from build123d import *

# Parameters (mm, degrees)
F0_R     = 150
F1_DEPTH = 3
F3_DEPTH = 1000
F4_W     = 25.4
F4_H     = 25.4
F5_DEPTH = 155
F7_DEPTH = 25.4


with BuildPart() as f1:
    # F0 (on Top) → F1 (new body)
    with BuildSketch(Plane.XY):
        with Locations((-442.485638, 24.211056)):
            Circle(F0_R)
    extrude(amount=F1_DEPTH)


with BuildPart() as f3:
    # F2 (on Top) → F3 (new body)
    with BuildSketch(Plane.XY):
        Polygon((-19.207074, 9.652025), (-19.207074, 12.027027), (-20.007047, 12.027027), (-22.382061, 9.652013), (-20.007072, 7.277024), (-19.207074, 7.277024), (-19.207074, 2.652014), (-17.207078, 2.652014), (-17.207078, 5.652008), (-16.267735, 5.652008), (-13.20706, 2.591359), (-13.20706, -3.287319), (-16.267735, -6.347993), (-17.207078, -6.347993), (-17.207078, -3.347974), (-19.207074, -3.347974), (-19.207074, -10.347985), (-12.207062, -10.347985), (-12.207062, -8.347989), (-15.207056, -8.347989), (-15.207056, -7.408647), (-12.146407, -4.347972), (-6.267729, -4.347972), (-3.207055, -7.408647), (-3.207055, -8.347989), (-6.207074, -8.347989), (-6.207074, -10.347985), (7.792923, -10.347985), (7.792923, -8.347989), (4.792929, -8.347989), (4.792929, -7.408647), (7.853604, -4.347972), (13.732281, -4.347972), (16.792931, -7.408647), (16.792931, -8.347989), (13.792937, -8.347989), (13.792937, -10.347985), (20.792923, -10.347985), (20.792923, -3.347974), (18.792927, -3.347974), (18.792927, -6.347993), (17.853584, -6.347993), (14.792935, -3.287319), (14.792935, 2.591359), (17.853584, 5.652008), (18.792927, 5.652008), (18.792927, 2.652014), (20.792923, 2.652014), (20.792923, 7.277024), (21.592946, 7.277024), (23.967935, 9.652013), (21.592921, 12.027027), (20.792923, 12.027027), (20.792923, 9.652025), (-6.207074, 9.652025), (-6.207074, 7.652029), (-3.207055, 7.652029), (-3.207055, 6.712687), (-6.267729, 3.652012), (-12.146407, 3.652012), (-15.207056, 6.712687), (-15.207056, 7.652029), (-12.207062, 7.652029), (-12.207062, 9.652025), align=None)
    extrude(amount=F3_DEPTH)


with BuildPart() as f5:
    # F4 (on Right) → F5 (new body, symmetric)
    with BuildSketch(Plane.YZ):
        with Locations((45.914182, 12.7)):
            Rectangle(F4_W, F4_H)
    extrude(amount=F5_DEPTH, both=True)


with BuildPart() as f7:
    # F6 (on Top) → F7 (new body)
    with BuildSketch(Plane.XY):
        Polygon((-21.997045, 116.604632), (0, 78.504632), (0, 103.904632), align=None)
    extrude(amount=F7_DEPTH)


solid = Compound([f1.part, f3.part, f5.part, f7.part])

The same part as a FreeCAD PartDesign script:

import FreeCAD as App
import Part
import Sketcher
Q = App.Units.Quantity

doc = App.newDocument("Part")
body = doc.addObject("PartDesign::Body", "Body")

sketch1 = doc.addObject("Sketcher::SketchObject", "Sketch")
body.addObject(sketch1)
sketch1.AttachmentSupport = (doc.XY_Plane, [""])
sketch1.MapMode = "FlatFace"
sketch1.addGeometry(Part.Circle(App.Vector(-442.485638, 24.211056, 0), App.Vector(0, 0, 1), 150), False)
sketch1.addConstraint([
    Sketcher.Constraint("Diameter", 0, 300.0),
    Sketcher.Constraint("DistanceX", 0, 3, -1, 1, 442.485638),
    Sketcher.Constraint("DistanceY", -1, 1, 0, 3, 24.211056),
])
pad1 = doc.addObject("PartDesign::Pad", "Pad")
body.addObject(pad1)
pad1.Profile = sketch1
pad1.Length = 3
body2 = doc.addObject("PartDesign::Body", "Body001")

sketch2 = doc.addObject("Sketcher::SketchObject", "Sketch001")
body2.addObject(sketch2)
sketch2.AttachmentSupport = (doc.getObject("XY_Plane001"), [""])
sketch2.MapMode = "FlatFace"
sketch2.addGeometry([
    Part.LineSegment(App.Vector(-19.207074, 9.652025, 0), App.Vector(-19.207074, 12.027027, 0)),
    Part.LineSegment(App.Vector(-19.207074, 12.027027, 0), App.Vector(-20.007047, 12.027027, 0)),
    Part.LineSegment(App.Vector(-20.007047, 12.027027, 0), App.Vector(-22.382061, 9.652013, 0)),
    Part.LineSegment(App.Vector(-22.382061, 9.652013, 0), App.Vector(-20.007072, 7.277024, 0)),
    Part.LineSegment(App.Vector(-20.007072, 7.277024, 0), App.Vector(-19.207074, 7.277024, 0)),
    Part.LineSegment(App.Vector(-19.207074, 7.277024, 0), App.Vector(-19.207074, 2.652014, 0)),
    Part.LineSegment(App.Vector(-19.207074, 2.652014, 0), App.Vector(-17.207078, 2.652014, 0)),
    Part.LineSegment(App.Vector(-17.207078, 2.652014, 0), App.Vector(-17.207078, 5.652008, 0)),
    Part.LineSegment(App.Vector(-17.207078, 5.652008, 0), App.Vector(-16.267735, 5.652008, 0)),
    Part.LineSegment(App.Vector(-16.267735, 5.652008, 0), App.Vector(-13.20706, 2.591359, 0)),
    Part.LineSegment(App.Vector(-13.20706, 2.591359, 0), App.Vector(-13.20706, -3.287319, 0)),
    Part.LineSegment(App.Vector(-13.20706, -3.287319, 0), App.Vector(-16.267735, -6.347993, 0)),
    Part.LineSegment(App.Vector(-16.267735, -6.347993, 0), App.Vector(-17.207078, -6.347993, 0)),
    Part.LineSegment(App.Vector(-17.207078, -6.347993, 0), App.Vector(-17.207078, -3.347974, 0)),
    Part.LineSegment(App.Vector(-17.207078, -3.347974, 0), App.Vector(-19.207074, -3.347974, 0)),
    Part.LineSegment(App.Vector(-19.207074, -3.347974, 0), App.Vector(-19.207074, -10.347985, 0)),
    Part.LineSegment(App.Vector(-19.207074, -10.347985, 0), App.Vector(-12.207062, -10.347985, 0)),
    Part.LineSegment(App.Vector(-12.207062, -10.347985, 0), App.Vector(-12.207062, -8.347989, 0)),
    Part.LineSegment(App.Vector(-12.207062, -8.347989, 0), App.Vector(-15.207056, -8.347989, 0)),
    Part.LineSegment(App.Vector(-15.207056, -8.347989, 0), App.Vector(-15.207056, -7.408647, 0)),
    Part.LineSegment(App.Vector(-15.207056, -7.408647, 0), App.Vector(-12.146407, -4.347972, 0)),
    Part.LineSegment(App.Vector(-12.146407, -4.347972, 0), App.Vector(-6.267729, -4.347972, 0)),
    Part.LineSegment(App.Vector(-6.267729, -4.347972, 0), App.Vector(-3.207055, -7.408647, 0)),
    Part.LineSegment(App.Vector(-3.207055, -7.408647, 0), App.Vector(-3.207055, -8.347989, 0)),
    Part.LineSegment(App.Vector(-3.207055, -8.347989, 0), App.Vector(-6.207074, -8.347989, 0)),
    Part.LineSegment(App.Vector(-6.207074, -8.347989, 0), App.Vector(-6.207074, -10.347985, 0)),
    Part.LineSegment(App.Vector(-6.207074, -10.347985, 0), App.Vector(7.792923, -10.347985, 0)),
    Part.LineSegment(App.Vector(7.792923, -10.347985, 0), App.Vector(7.792923, -8.347989, 0)),
    Part.LineSegment(App.Vector(7.792923, -8.347989, 0), App.Vector(4.792929, -8.347989, 0)),
    Part.LineSegment(App.Vector(4.792929, -8.347989, 0), App.Vector(4.792929, -7.408647, 0)),
    Part.LineSegment(App.Vector(4.792929, -7.408647, 0), App.Vector(7.853604, -4.347972, 0)),
    Part.LineSegment(App.Vector(7.853604, -4.347972, 0), App.Vector(13.732281, -4.347972, 0)),
    Part.LineSegment(App.Vector(13.732281, -4.347972, 0), App.Vector(16.792931, -7.408647, 0)),
    Part.LineSegment(App.Vector(16.792931, -7.408647, 0), App.Vector(16.792931, -8.347989, 0)),
    Part.LineSegment(App.Vector(16.792931, -8.347989, 0), App.Vector(13.792937, -8.347989, 0)),
    Part.LineSegment(App.Vector(13.792937, -8.347989, 0), App.Vector(13.792937, -10.347985, 0)),
    Part.LineSegment(App.Vector(13.792937, -10.347985, 0), App.Vector(20.792923, -10.347985, 0)),
    Part.LineSegment(App.Vector(20.792923, -10.347985, 0), App.Vector(20.792923, -3.347974, 0)),
    Part.LineSegment(App.Vector(20.792923, -3.347974, 0), App.Vector(18.792927, -3.347974, 0)),
    Part.LineSegment(App.Vector(18.792927, -3.347974, 0), App.Vector(18.792927, -6.347993, 0)),
    Part.LineSegment(App.Vector(18.792927, -6.347993, 0), App.Vector(17.853584, -6.347993, 0)),
    Part.LineSegment(App.Vector(17.853584, -6.347993, 0), App.Vector(14.792935, -3.287319, 0)),
    Part.LineSegment(App.Vector(14.792935, -3.287319, 0), App.Vector(14.792935, 2.591359, 0)),
    Part.LineSegment(App.Vector(14.792935, 2.591359, 0), App.Vector(17.853584, 5.652008, 0)),
    Part.LineSegment(App.Vector(17.853584, 5.652008, 0), App.Vector(18.792927, 5.652008, 0)),
    Part.LineSegment(App.Vector(18.792927, 5.652008, 0), App.Vector(18.792927, 2.652014, 0)),
    Part.LineSegment(App.Vector(18.792927, 2.652014, 0), App.Vector(20.792923, 2.652014, 0)),
    Part.LineSegment(App.Vector(20.792923, 2.652014, 0), App.Vector(20.792923, 7.277024, 0)),
    Part.LineSegment(App.Vector(20.792923, 7.277024, 0), App.Vector(21.592946, 7.277024, 0)),
    Part.LineSegment(App.Vector(21.592946, 7.277024, 0), App.Vector(23.967935, 9.652013, 0)),
    Part.LineSegment(App.Vector(23.967935, 9.652013, 0), App.Vector(21.592921, 12.027027, 0)),
    Part.LineSegment(App.Vector(21.592921, 12.027027, 0), App.Vector(20.792923, 12.027027, 0)),
    Part.LineSegment(App.Vector(20.792923, 12.027027, 0), App.Vector(20.792923, 9.652025, 0)),
    Part.LineSegment(App.Vector(20.792923, 9.652025, 0), App.Vector(-6.207074, 9.652025, 0)),
    Part.LineSegment(App.Vector(-6.207074, 9.652025, 0), App.Vector(-6.207074, 7.652029, 0)),
    Part.LineSegment(App.Vector(-6.207074, 7.652029, 0), App.Vector(-3.207055, 7.652029, 0)),
    Part.LineSegment(App.Vector(-3.207055, 7.652029, 0), App.Vector(-3.207055, 6.712687, 0)),
    Part.LineSegment(App.Vector(-3.207055, 6.712687, 0), App.Vector(-6.267729, 3.652012, 0)),
    Part.LineSegment(App.Vector(-6.267729, 3.652012, 0), App.Vector(-12.146407, 3.652012, 0)),
    Part.LineSegment(App.Vector(-12.146407, 3.652012, 0), App.Vector(-15.207056, 6.712687, 0)),
    Part.LineSegment(App.Vector(-15.207056, 6.712687, 0), App.Vector(-15.207056, 7.652029, 0)),
    Part.LineSegment(App.Vector(-15.207056, 7.652029, 0), App.Vector(-12.207062, 7.652029, 0)),
    Part.LineSegment(App.Vector(-12.207062, 7.652029, 0), App.Vector(-12.207062, 9.652025, 0)),
    Part.LineSegment(App.Vector(-12.207062, 9.652025, 0), App.Vector(-19.207074, 9.652025, 0)),
], False)
sketch2.addConstraint([
    Sketcher.Constraint("Coincident", 0, 2, 1, 1),
    Sketcher.Constraint("Coincident", 1, 2, 2, 1),
    Sketcher.Constraint("Coincident", 2, 2, 3, 1),
    Sketcher.Constraint("Coincident", 3, 2, 4, 1),
    Sketcher.Constraint("Coincident", 4, 2, 5, 1),
    Sketcher.Constraint("Coincident", 5, 2, 6, 1),
    Sketcher.Constraint("Coincident", 6, 2, 7, 1),
    Sketcher.Constraint("Coincident", 7, 2, 8, 1),
    Sketcher.Constraint("Coincident", 8, 2, 9, 1),
    Sketcher.Constraint("Coincident", 9, 2, 10, 1),
    Sketcher.Constraint("Coincident", 10, 2, 11, 1),
    Sketcher.Constraint("Coincident", 11, 2, 12, 1),
    Sketcher.Constraint("Coincident", 12, 2, 13, 1),
    Sketcher.Constraint("Coincident", 13, 2, 14, 1),
    Sketcher.Constraint("Coincident", 14, 2, 15, 1),
    Sketcher.Constraint("Coincident", 15, 2, 16, 1),
    Sketcher.Constraint("Coincident", 16, 2, 17, 1),
    Sketcher.Constraint("Coincident", 17, 2, 18, 1),
    Sketcher.Constraint("Coincident", 18, 2, 19, 1),
    Sketcher.Constraint("Coincident", 19, 2, 20, 1),
    Sketcher.Constraint("Coincident", 20, 2, 21, 1),
    Sketcher.Constraint("Coincident", 21, 2, 22, 1),
    Sketcher.Constraint("Coincident", 22, 2, 23, 1),
    Sketcher.Constraint("Coincident", 23, 2, 24, 1),
    Sketcher.Constraint("Coincident", 24, 2, 25, 1),
    Sketcher.Constraint("Coincident", 25, 2, 26, 1),
    Sketcher.Constraint("Coincident", 26, 2, 27, 1),
    Sketcher.Constraint("Coincident", 27, 2, 28, 1),
    Sketcher.Constraint("Coincident", 28, 2, 29, 1),
    Sketcher.Constraint("Coincident", 29, 2, 30, 1),
    Sketcher.Constraint("Coincident", 30, 2, 31, 1),
    Sketcher.Constraint("Coincident", 31, 2, 32, 1),
    Sketcher.Constraint("Coincident", 32, 2, 33, 1),
    Sketcher.Constraint("Coincident", 33, 2, 34, 1),
    Sketcher.Constraint("Coincident", 34, 2, 35, 1),
    Sketcher.Constraint("Coincident", 35, 2, 36, 1),
    Sketcher.Constraint("Coincident", 36, 2, 37, 1),
    Sketcher.Constraint("Coincident", 37, 2, 38, 1),
    Sketcher.Constraint("Coincident", 38, 2, 39, 1),
    Sketcher.Constraint("Coincident", 39, 2, 40, 1),
    Sketcher.Constraint("Coincident", 40, 2, 41, 1),
    Sketcher.Constraint("Coincident", 41, 2, 42, 1),
    Sketcher.Constraint("Coincident", 42, 2, 43, 1),
    Sketcher.Constraint("Coincident", 43, 2, 44, 1),
    Sketcher.Constraint("Coincident", 44, 2, 45, 1),
    Sketcher.Constraint("Coincident", 45, 2, 46, 1),
    Sketcher.Constraint("Coincident", 46, 2, 47, 1),
    Sketcher.Constraint("Coincident", 47, 2, 48, 1),
    Sketcher.Constraint("Coincident", 48, 2, 49, 1),
    Sketcher.Constraint("Coincident", 49, 2, 50, 1),
    Sketcher.Constraint("Coincident", 50, 2, 51, 1),
    Sketcher.Constraint("Coincident", 51, 2, 52, 1),
    Sketcher.Constraint("Coincident", 52, 2, 53, 1),
    Sketcher.Constraint("Coincident", 53, 2, 54, 1),
    Sketcher.Constraint("Coincident", 54, 2, 55, 1),
    Sketcher.Constraint("Coincident", 55, 2, 56, 1),
    Sketcher.Constraint("Coincident", 56, 2, 57, 1),
    Sketcher.Constraint("Coincident", 57, 2, 58, 1),
    Sketcher.Constraint("Coincident", 58, 2, 59, 1),
    Sketcher.Constraint("Coincident", 59, 2, 60, 1),
    Sketcher.Constraint("Coincident", 60, 2, 61, 1),
    Sketcher.Constraint("Coincident", 61, 2, 62, 1),
    Sketcher.Constraint("Coincident", 62, 2, 63, 1),
    Sketcher.Constraint("Coincident", 63, 2, 0, 1),
    Sketcher.Constraint("Vertical", 0),
    Sketcher.Constraint("Horizontal", 1),
    Sketcher.Constraint("Horizontal", 4),
    Sketcher.Constraint("Vertical", 5),
    Sketcher.Constraint("Horizontal", 6),
    Sketcher.Constraint("Vertical", 7),
    Sketcher.Constraint("Horizontal", 8),
    Sketcher.Constraint("Vertical", 10),
    Sketcher.Constraint("Horizontal", 12),
    Sketcher.Constraint("Vertical", 13),
    Sketcher.Constraint("Horizontal", 14),
    Sketcher.Constraint("Vertical", 15),
    Sketcher.Constraint("Horizontal", 16),
    Sketcher.Constraint("Vertical", 17),
    Sketcher.Constraint("Horizontal", 18),
    Sketcher.Constraint("Vertical", 19),
    Sketcher.Constraint("Horizontal", 21),
    Sketcher.Constraint("Vertical", 23),
    Sketcher.Constraint("Horizontal", 24),
    Sketcher.Constraint("Vertical", 25),
    Sketcher.Constraint("Horizontal", 26),
    Sketcher.Constraint("Vertical", 27),
    Sketcher.Constraint("Horizontal", 28),
    Sketcher.Constraint("Vertical", 29),
    Sketcher.Constraint("Horizontal", 31),
    Sketcher.Constraint("Vertical", 33),
    Sketcher.Constraint("Horizontal", 34),
    Sketcher.Constraint("Vertical", 35),
    Sketcher.Constraint("Horizontal", 36),
    Sketcher.Constraint("Vertical", 37),
    Sketcher.Constraint("Horizontal", 38),
    Sketcher.Constraint("Vertical", 39),
    Sketcher.Constraint("Horizontal", 40),
    Sketcher.Constraint("Vertical", 42),
    Sketcher.Constraint("Horizontal", 44),
    Sketcher.Constraint("Vertical", 45),
    Sketcher.Constraint("Horizontal", 46),
    Sketcher.Constraint("Vertical", 47),
    Sketcher.Constraint("Horizontal", 48),
    Sketcher.Constraint("Horizontal", 51),
    Sketcher.Constraint("Vertical", 52),
    Sketcher.Constraint("Horizontal", 53),
    Sketcher.Constraint("Vertical", 54),
    Sketcher.Constraint("Horizontal", 55),
    Sketcher.Constraint("Vertical", 56),
    Sketcher.Constraint("Horizontal", 58),
    Sketcher.Constraint("Vertical", 60),
    Sketcher.Constraint("Horizontal", 61),
    Sketcher.Constraint("Vertical", 62),
    Sketcher.Constraint("Horizontal", 63),
    Sketcher.Constraint("Perpendicular", 2, 3),
    Sketcher.Constraint("Perpendicular", 3, 11),
    Sketcher.Constraint("Perpendicular", 9, 20),
    Sketcher.Constraint("Perpendicular", 11, 22),
    Sketcher.Constraint("Perpendicular", 22, 30),
    Sketcher.Constraint("Parallel", 32, 41),
    Sketcher.Constraint("Parallel", 30, 43),
    Sketcher.Constraint("Parallel", 43, 49),
    Sketcher.Constraint("Perpendicular", 49, 50),
    Sketcher.Constraint("Perpendicular", 50, 57),
    Sketcher.Constraint("Parallel", 41, 59),
    Sketcher.Constraint("Horizontal", 19, 2, 22, 2),
    Sketcher.Constraint("Horizontal", 18, 2, 23, 2),
    Sketcher.Constraint("Horizontal", 16, 2, 25, 2),
    Sketcher.Constraint("Horizontal", 24, 2, 27, 2),
    Sketcher.Constraint("Horizontal", 22, 2, 29, 2),
    Sketcher.Constraint("Horizontal", 21, 2, 30, 2),
    Sketcher.Constraint("Horizontal", 29, 2, 32, 2),
    Sketcher.Constraint("Horizontal", 28, 2, 33, 2),
    Sketcher.Constraint("Horizontal", 26, 2, 35, 2),
    Sketcher.Constraint("Horizontal", 14, 2, 37, 2),
    Sketcher.Constraint("Horizontal", 12, 2, 39, 2),
    Sketcher.Constraint("Horizontal", 10, 2, 41, 2),
    Sketcher.Constraint("Horizontal", 9, 2, 42, 2),
    Sketcher.Constraint("Horizontal", 8, 2, 43, 2),
    Sketcher.Constraint("Horizontal", 6, 2, 45, 2),
    Sketcher.Constraint("Horizontal", 4, 2, 47, 2),
    Sketcher.Constraint("Horizontal", 2, 2, 49, 2),
    Sketcher.Constraint("Horizontal", 1, 2, 50, 2),
    Sketcher.Constraint("Horizontal", 56, 2, 59, 2),
    Sketcher.Constraint("Horizontal", 55, 2, 60, 2),
    Sketcher.Constraint("Horizontal", 53, 2, 62, 2),
    Sketcher.Constraint("Vertical", 0, 2, 4, 2),
    Sketcher.Constraint("Vertical", 8, 2, 11, 2),
    Sketcher.Constraint("Vertical", 7, 2, 12, 2),
    Sketcher.Constraint("Vertical", 5, 2, 14, 2),
    Sketcher.Constraint("Vertical", 40, 2, 43, 2),
    Sketcher.Constraint("Vertical", 39, 2, 44, 2),
    Sketcher.Constraint("Vertical", 37, 2, 46, 2),
    Sketcher.Constraint("Vertical", 47, 2, 51, 2),
    Sketcher.Constraint("Vertical", 25, 2, 53, 2),
    Sketcher.Constraint("Vertical", 23, 2, 55, 2),
    Sketcher.Constraint("Vertical", 21, 2, 57, 2),
    Sketcher.Constraint("Vertical", 20, 2, 58, 2),
    Sketcher.Constraint("Vertical", 17, 2, 61, 2),
    Sketcher.Constraint("Equal", 18, 28),
    Sketcher.Constraint("Equal", 21, 31),
    Sketcher.Constraint("Equal", 28, 34),
    Sketcher.Constraint("Equal", 14, 38),
    Sketcher.Constraint("Equal", 12, 40),
    Sketcher.Constraint("Equal", 4, 51),
    Sketcher.Constraint("Equal", 61, 7),
    Sketcher.Constraint("Equal", 58, 10),
    Sketcher.Constraint("Equal", 55, 13),
    Sketcher.Constraint("Equal", 63, 15),
    Sketcher.Constraint("Equal", 46, 17),
    Sketcher.Constraint("Equal", 44, 19),
    Sketcher.Constraint("Equal", 35, 54),
    Sketcher.Constraint("Equal", 33, 56),
    Sketcher.Constraint("Equal", 9, 20),
    Sketcher.Constraint("Equal", 22, 30),
    Sketcher.Constraint("DistanceX", 4, 1, 4, 2, 0.799998),
    Sketcher.Constraint("DistanceX", 16, 1, 16, 2, 7.000012),
    Sketcher.Constraint("DistanceX", 24, 2, 24, 1, 3.000019),
    Sketcher.Constraint("DistanceY", 5, 2, 5, 1, 4.62501),
    Sketcher.Constraint("DistanceY", 10, 2, 10, 1, 5.878678),
    Sketcher.Constraint("DistanceY", 19, 1, 19, 2, 0.939342),
    Sketcher.Constraint("Distance", 3, 3.358742),
    Sketcher.Constraint("Distance", 9, 4.32843),
    Sketcher.Constraint("Distance", 30, 4.328448),
    Sketcher.Constraint("DistanceX", 1, 2, 1, 1, 0.799973),
    Sketcher.Constraint("DistanceX", 6, 1, 6, 2, 1.999996),
    Sketcher.Constraint("DistanceX", 18, 2, 18, 1, 2.999994),
    Sketcher.Constraint("DistanceX", 26, 1, 26, 2, 13.999997),
    Sketcher.Constraint("DistanceX", 36, 1, 36, 2, 6.999986),
    Sketcher.Constraint("DistanceY", 0, 1, 0, 2, 2.375002),
    Sketcher.Constraint("DistanceX", 2, 2, -1, 1, 22.382061),
    Sketcher.Constraint("DistanceY", -1, 1, 7, 2, 5.652008),
])
pad2 = doc.addObject("PartDesign::Pad", "Pad001")
body2.addObject(pad2)
pad2.Profile = sketch2
pad2.Length = 1000
body3 = doc.addObject("PartDesign::Body", "Body002")

sketch3 = doc.addObject("Sketcher::SketchObject", "Sketch002")
body3.addObject(sketch3)
sketch3.AttachmentSupport = (doc.getObject("YZ_Plane002"), [""])
sketch3.MapMode = "FlatFace"
sketch3.addGeometry([
    Part.LineSegment(App.Vector(33.214182, 25.4, 0), App.Vector(33.214182, 0, 0)),
    Part.LineSegment(App.Vector(33.214182, 0, 0), App.Vector(58.614182, 0, 0)),
    Part.LineSegment(App.Vector(58.614182, 0, 0), App.Vector(58.614182, 25.4, 0)),
    Part.LineSegment(App.Vector(58.614182, 25.4, 0), App.Vector(33.214182, 25.4, 0)),
], False)
sketch3.addConstraint([
    Sketcher.Constraint("Coincident", 0, 2, 1, 1),
    Sketcher.Constraint("Coincident", 1, 2, 2, 1),
    Sketcher.Constraint("Coincident", 2, 2, 3, 1),
    Sketcher.Constraint("Coincident", 3, 2, 0, 1),
    Sketcher.Constraint("Vertical", 0),
    Sketcher.Constraint("Horizontal", 1),
    Sketcher.Constraint("Vertical", 2),
    Sketcher.Constraint("Horizontal", 3),
    Sketcher.Constraint("PointOnObject", 0, 2, -1),
    Sketcher.Constraint("Equal", 3, 0),
    Sketcher.Constraint("DistanceX", 1, 1, 1, 2, 25.4),
    Sketcher.Constraint("DistanceX", -1, 1, 0, 2, 33.214182),
])
pad3 = doc.addObject("PartDesign::Pad", "Pad002")
body3.addObject(pad3)
pad3.Profile = sketch3
pad3.Length = 310
pad3.Midplane = True
body4 = doc.addObject("PartDesign::Body", "Body003")

sketch4 = doc.addObject("Sketcher::SketchObject", "Sketch003")
body4.addObject(sketch4)
sketch4.AttachmentSupport = (doc.getObject("XY_Plane003"), [""])
sketch4.MapMode = "FlatFace"
sketch4.addGeometry([
    Part.LineSegment(App.Vector(-21.997045, 116.604632, 0), App.Vector(0, 78.504632, 0)),
    Part.LineSegment(App.Vector(0, 78.504632, 0), App.Vector(0, 103.904632, 0)),
    Part.LineSegment(App.Vector(0, 103.904632, 0), App.Vector(-21.997045, 116.604632, 0)),
], False)
sketch4.addConstraint([
    Sketcher.Constraint("Coincident", 0, 2, 1, 1),
    Sketcher.Constraint("Coincident", 1, 2, 2, 1),
    Sketcher.Constraint("Coincident", 2, 2, 0, 1),
    Sketcher.Constraint("Vertical", 1),
    Sketcher.Constraint("PointOnObject", 0, 2, -2),
    Sketcher.Constraint("Angle", 0, Q("-60 deg")),
    Sketcher.Constraint("Angle", 2, Q("150 deg")),
    Sketcher.Constraint("DistanceY", 1, 1, 1, 2, 25.4),
    Sketcher.Constraint("DistanceY", -1, 1, 0, 2, 78.504632),
])
pad4 = doc.addObject("PartDesign::Pad", "Pad003")
body4.addObject(pad4)
pad4.Profile = sketch4
pad4.Length = 25.4

doc.recompute()
